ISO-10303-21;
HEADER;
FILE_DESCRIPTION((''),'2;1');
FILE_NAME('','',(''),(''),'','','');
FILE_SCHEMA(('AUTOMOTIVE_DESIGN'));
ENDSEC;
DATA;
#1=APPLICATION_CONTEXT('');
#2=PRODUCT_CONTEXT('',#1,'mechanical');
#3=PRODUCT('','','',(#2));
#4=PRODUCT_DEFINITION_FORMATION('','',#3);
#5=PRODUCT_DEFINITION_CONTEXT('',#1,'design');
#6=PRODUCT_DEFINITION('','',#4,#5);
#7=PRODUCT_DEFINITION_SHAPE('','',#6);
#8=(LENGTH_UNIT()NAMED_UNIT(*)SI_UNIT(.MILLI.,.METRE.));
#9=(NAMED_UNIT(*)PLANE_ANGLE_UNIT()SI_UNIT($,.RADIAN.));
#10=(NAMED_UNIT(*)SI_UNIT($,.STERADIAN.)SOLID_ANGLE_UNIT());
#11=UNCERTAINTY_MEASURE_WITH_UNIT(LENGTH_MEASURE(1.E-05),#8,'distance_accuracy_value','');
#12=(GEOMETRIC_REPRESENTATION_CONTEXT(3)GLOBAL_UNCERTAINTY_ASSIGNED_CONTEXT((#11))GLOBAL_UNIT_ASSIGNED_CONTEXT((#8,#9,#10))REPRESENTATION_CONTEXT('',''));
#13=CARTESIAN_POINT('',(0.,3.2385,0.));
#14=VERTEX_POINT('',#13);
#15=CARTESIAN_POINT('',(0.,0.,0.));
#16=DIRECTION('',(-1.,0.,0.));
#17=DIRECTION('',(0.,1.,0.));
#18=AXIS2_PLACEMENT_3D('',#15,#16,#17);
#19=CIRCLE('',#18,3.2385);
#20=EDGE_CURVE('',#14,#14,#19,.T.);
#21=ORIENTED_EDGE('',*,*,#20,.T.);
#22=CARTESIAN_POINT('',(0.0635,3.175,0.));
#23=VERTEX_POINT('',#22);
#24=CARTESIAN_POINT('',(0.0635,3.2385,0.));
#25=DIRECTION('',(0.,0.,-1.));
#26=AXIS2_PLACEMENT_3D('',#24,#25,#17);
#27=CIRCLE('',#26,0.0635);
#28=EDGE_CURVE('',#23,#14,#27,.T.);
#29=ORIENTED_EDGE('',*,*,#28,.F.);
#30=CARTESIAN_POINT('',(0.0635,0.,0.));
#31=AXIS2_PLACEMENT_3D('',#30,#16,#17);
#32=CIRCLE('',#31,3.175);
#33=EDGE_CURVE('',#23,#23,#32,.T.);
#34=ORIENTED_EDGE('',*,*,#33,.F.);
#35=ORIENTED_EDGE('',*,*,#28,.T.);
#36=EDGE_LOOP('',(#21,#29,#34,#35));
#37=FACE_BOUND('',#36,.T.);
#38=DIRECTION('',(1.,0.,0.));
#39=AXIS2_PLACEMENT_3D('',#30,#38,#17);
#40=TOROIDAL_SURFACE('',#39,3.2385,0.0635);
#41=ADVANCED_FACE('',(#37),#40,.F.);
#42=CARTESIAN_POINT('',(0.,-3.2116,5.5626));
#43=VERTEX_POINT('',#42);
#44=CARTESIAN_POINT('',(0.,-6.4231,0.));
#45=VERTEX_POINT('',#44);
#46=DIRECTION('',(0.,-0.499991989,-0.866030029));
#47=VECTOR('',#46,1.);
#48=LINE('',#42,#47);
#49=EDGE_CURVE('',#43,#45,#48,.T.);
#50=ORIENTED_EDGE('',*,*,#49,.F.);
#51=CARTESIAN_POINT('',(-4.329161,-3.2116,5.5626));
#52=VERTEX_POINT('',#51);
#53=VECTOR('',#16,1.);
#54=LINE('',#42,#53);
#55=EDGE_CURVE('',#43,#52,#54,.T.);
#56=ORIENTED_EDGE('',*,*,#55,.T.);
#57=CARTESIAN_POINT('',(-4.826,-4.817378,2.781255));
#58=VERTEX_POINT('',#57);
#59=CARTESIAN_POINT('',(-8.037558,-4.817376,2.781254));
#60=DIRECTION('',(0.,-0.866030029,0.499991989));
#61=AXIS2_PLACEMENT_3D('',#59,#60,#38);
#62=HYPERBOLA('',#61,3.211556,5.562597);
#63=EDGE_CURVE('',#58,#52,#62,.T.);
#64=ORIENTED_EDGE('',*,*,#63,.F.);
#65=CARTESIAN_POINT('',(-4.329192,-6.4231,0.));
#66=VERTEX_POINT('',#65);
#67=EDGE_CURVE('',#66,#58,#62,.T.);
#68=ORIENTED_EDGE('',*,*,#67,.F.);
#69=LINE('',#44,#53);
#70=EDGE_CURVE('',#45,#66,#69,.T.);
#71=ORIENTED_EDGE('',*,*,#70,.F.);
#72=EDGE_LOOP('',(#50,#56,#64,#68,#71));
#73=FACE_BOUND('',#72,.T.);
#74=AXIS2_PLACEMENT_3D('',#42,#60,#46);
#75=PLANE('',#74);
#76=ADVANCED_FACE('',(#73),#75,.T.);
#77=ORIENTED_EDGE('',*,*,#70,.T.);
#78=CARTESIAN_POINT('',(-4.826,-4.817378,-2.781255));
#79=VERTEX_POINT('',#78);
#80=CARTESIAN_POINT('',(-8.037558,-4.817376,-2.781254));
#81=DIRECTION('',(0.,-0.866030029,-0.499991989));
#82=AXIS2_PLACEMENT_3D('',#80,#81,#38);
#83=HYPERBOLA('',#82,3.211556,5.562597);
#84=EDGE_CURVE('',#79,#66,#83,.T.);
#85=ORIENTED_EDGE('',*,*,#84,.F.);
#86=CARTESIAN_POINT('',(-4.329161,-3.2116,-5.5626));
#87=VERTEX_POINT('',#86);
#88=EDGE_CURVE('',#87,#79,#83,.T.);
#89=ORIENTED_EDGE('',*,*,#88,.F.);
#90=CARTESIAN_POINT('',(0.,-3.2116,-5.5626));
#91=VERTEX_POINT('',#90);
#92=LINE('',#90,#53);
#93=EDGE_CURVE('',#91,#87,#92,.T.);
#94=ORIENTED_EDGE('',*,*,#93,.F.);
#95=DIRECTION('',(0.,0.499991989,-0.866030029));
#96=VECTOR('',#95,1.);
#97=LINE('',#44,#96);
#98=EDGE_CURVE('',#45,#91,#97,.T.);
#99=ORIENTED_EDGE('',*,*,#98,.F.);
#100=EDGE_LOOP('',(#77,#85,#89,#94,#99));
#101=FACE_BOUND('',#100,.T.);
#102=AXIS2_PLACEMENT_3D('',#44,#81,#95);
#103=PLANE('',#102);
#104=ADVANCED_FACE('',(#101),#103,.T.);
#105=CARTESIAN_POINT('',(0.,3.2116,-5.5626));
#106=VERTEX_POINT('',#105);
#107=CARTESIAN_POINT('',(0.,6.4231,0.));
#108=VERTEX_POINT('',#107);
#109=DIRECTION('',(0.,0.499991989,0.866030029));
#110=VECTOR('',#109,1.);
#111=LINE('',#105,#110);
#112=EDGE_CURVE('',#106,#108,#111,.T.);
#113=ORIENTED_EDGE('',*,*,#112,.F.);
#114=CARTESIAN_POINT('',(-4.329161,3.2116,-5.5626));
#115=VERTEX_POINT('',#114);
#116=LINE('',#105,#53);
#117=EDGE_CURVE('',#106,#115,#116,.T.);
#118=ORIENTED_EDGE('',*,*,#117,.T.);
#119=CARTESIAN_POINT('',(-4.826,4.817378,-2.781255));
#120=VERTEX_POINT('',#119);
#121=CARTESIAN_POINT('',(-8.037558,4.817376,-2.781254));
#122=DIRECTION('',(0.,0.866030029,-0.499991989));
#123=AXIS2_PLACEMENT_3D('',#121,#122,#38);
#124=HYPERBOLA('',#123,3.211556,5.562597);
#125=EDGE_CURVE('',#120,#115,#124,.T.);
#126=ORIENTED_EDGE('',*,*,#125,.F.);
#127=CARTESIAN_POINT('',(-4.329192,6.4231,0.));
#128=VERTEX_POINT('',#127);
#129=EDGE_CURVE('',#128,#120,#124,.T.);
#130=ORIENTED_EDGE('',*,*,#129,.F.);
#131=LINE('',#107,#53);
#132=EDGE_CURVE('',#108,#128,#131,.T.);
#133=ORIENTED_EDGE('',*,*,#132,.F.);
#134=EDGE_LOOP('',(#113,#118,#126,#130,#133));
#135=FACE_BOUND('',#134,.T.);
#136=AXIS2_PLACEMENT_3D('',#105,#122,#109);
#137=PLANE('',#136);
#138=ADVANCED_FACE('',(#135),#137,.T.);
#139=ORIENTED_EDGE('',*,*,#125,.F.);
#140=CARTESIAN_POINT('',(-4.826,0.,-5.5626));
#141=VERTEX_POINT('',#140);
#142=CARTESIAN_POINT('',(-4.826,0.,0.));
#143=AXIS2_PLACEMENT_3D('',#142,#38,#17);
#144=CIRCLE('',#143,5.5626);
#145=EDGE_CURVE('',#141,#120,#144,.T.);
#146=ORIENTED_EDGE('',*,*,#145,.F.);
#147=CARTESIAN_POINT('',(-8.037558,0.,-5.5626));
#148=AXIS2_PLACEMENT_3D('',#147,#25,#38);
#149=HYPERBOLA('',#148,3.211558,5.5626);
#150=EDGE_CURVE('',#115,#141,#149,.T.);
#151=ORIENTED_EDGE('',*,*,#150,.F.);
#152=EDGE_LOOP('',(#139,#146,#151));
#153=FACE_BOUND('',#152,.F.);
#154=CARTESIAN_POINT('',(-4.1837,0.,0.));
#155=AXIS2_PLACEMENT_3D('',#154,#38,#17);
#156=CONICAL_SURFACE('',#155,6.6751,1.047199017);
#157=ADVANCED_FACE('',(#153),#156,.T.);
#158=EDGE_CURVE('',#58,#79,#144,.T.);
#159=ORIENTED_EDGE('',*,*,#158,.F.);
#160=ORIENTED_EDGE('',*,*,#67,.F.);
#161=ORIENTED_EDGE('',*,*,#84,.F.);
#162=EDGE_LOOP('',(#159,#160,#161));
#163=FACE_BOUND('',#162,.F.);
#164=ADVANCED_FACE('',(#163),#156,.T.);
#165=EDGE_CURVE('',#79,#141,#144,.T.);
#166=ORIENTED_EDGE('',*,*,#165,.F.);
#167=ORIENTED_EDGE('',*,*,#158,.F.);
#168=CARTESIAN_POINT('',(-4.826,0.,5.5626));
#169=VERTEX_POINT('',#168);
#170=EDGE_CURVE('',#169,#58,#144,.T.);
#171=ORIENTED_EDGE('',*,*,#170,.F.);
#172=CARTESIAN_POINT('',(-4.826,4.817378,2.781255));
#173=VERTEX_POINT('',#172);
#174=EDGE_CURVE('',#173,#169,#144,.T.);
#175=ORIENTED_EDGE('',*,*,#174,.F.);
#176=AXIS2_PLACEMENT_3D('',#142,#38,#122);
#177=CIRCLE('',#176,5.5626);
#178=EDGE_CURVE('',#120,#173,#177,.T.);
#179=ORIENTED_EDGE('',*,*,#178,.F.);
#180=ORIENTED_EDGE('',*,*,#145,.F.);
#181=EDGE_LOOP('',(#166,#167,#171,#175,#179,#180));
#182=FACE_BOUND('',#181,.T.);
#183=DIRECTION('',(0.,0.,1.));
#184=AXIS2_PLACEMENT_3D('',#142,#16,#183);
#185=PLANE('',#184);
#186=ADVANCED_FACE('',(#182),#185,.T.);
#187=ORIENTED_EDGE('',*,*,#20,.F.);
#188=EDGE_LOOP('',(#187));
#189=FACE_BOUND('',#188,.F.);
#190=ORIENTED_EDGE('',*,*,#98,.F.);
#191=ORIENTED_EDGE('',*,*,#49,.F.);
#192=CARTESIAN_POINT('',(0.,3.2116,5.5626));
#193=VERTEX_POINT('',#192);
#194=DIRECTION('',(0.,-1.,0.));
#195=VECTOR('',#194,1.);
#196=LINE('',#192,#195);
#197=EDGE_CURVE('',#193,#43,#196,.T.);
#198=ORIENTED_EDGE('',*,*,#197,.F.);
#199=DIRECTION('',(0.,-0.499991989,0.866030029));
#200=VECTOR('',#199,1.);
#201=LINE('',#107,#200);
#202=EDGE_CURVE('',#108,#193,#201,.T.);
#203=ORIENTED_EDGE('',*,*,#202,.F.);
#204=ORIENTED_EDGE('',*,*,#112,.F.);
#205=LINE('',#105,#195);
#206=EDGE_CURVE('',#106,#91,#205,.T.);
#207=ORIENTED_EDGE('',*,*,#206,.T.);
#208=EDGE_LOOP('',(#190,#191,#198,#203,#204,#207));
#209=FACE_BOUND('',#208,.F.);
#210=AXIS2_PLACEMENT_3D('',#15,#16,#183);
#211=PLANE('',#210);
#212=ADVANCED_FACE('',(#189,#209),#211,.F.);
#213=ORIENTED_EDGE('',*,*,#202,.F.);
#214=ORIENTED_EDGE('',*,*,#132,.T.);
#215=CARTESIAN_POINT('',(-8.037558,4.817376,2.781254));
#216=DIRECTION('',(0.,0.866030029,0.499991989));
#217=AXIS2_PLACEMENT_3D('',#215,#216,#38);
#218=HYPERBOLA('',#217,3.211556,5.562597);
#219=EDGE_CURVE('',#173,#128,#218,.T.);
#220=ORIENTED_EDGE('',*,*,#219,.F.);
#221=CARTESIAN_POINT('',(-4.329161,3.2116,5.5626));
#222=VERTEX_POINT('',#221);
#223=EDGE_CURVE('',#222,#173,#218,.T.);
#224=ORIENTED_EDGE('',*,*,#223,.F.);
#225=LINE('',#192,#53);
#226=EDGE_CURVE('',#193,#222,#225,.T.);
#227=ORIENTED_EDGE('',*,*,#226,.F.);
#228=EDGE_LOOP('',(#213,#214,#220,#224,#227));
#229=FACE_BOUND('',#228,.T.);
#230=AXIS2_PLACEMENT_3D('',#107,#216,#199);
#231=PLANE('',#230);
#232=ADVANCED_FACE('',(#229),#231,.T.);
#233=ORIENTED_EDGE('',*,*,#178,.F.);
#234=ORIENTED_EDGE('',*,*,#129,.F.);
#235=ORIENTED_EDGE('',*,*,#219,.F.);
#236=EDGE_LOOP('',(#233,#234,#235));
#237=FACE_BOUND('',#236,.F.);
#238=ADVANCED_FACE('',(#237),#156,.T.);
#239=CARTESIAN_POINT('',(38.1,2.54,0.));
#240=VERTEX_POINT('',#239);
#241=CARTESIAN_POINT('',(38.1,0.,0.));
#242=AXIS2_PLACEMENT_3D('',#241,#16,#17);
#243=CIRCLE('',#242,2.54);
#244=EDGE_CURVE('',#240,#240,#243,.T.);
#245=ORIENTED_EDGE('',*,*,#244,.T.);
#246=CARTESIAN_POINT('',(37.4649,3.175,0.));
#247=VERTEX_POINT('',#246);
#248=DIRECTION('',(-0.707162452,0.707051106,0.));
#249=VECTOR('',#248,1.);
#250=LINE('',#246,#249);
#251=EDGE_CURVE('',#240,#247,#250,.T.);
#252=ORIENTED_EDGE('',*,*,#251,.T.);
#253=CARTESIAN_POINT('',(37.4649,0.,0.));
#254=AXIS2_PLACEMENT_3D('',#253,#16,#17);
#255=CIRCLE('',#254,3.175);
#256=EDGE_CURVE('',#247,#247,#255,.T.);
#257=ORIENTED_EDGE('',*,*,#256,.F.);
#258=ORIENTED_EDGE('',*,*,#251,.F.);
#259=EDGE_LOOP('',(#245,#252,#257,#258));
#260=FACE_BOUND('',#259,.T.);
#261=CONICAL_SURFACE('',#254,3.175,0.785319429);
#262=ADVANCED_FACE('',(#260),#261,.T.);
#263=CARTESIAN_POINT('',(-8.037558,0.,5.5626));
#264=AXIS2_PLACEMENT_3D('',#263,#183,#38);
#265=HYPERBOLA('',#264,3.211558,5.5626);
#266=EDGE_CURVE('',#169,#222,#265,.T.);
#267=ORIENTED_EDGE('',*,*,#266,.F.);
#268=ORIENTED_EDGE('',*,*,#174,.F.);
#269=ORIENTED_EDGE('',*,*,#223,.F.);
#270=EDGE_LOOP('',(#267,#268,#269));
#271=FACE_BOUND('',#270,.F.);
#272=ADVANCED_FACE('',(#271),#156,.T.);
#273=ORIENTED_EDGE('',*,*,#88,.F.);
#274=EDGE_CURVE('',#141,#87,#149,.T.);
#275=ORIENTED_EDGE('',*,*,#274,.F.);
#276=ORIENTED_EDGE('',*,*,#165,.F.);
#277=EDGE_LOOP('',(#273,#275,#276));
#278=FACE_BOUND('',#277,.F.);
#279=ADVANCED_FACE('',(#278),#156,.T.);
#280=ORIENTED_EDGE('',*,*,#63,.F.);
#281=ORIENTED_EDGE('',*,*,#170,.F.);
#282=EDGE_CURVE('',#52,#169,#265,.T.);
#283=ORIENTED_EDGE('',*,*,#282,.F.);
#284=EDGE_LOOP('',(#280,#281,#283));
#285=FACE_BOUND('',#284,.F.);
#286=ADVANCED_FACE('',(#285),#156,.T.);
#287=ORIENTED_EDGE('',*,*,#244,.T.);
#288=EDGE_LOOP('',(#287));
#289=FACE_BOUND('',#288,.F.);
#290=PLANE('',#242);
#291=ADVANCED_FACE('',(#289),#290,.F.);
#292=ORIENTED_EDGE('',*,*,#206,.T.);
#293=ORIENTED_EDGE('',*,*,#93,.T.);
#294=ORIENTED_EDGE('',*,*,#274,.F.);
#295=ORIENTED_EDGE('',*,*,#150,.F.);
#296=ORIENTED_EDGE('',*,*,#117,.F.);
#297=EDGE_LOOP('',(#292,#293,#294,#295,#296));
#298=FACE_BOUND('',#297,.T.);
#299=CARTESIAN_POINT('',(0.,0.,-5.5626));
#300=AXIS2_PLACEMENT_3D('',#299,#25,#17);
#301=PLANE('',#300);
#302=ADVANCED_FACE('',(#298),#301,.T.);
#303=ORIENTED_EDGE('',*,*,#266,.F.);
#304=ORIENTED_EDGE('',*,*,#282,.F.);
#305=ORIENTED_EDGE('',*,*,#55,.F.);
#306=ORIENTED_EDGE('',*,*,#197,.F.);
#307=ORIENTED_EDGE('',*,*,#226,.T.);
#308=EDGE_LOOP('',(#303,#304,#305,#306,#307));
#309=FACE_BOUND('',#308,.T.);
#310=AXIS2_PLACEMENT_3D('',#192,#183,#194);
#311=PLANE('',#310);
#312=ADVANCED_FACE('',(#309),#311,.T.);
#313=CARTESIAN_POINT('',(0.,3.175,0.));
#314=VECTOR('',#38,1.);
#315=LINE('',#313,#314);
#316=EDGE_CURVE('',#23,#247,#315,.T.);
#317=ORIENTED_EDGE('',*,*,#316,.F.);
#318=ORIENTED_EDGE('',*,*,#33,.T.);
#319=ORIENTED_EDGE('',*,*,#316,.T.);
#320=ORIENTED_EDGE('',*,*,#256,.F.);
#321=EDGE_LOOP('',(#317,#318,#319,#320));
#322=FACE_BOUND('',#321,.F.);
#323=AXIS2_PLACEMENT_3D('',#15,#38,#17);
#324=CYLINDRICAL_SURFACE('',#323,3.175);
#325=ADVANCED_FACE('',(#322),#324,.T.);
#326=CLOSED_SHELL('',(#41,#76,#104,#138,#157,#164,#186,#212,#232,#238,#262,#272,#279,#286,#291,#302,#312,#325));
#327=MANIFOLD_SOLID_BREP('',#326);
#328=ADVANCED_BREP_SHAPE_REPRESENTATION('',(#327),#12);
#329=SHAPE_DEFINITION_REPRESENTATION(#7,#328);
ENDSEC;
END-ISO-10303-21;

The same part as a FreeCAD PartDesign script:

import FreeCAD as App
import Part
import Sketcher
Q = App.Units.Quantity


def edges_at(feature, points):
    """Names of the edges that pass closest to the given points."""
    edges = feature.Shape.Edges
    near = lambda p: min(range(len(edges)), key=lambda i: edges[i].distToShape(Part.Vertex(*p))[0])
    return sorted({f"Edge{near(p) + 1}" for p in points})

doc = App.newDocument("Part")
body = doc.addObject("PartDesign::Body", "Body")

# Sketch on XY plane
sketch1 = body.newObject("Sketcher::SketchObject", "Sketch")
sketch1.AttachmentSupport = (doc.getObject("XY_Plane"), [""])
sketch1.MapMode = "FlatFace"
sketch1.addGeometry(Part.LineSegment(App.Vector(38.1, 3.2, 0), App.Vector(0, 3.2, 0)), False)
sketch1.addGeometry(Part.LineSegment(App.Vector(0, 3.2, 0), App.Vector(0, 0, 0)), False)
sketch1.addGeometry(Part.LineSegment(App.Vector(0, 0, 0), App.Vector(38.1, 0, 0)), False)
sketch1.addGeometry(Part.LineSegment(App.Vector(38.1, 0, 0), App.Vector(38.1, 3.2, 0)), False)
sketch1.addConstraint(Sketcher.Constraint("Coincident", 0, 2, 1, 1))
sketch1.addConstraint(Sketcher.Constraint("Coincident", 1, 2, 2, 1))
sketch1.addConstraint(Sketcher.Constraint("Coincident", 2, 2, 3, 1))
sketch1.addConstraint(Sketcher.Constraint("Coincident", 3, 2, 0, 1))
sketch1.addConstraint(Sketcher.Constraint("Horizontal", 0))
sketch1.addConstraint(Sketcher.Constraint("Vertical", 1))
sketch1.addConstraint(Sketcher.Constraint("Horizontal", 2))
sketch1.addConstraint(Sketcher.Constraint("Vertical", 3))
sketch1.addConstraint(Sketcher.Constraint("Coincident", 1, 2, -1, 1))
sketch1.addConstraint(Sketcher.Constraint("DistanceX", 0, 2, 0, 1, Q("1.5 in")))
sketch1.addConstraint(Sketcher.Constraint("DistanceY", 1, 2, 1, 1, Q("0.125 in")))
revolution = body.newObject("PartDesign::Revolution", "Revolution")
revolution.Profile = sketch1
revolution.ReferenceAxis = (sketch1, ["H_Axis"])
revolution.Angle = 360

# Sketch on YZ plane
sketch2 = body.newObject("Sketcher::SketchObject", "Sketch001")
sketch2.AttachmentSupport = (doc.getObject("YZ_Plane"), [""])
sketch2.MapMode = "FlatFace"
sketch2.addGeometry(Part.LineSegment(App.Vector(3, -6, 0), App.Vector(-3, -6, 0)), False)
sketch2.addGeometry(Part.LineSegment(App.Vector(-3, -6, 0), App.Vector(-6, 0, 0)), False)
sketch2.addGeometry(Part.LineSegment(App.Vector(-6, 0, 0), App.Vector(-3, 6, 0)), False)
sketch2.addGeometry(Part.LineSegment(App.Vector(-3, 6, 0), App.Vector(3, 6, 0)), False)
sketch2.addGeometry(Part.LineSegment(App.Vector(3, 6, 0), App.Vector(6, 0, 0)), False)
sketch2.addGeometry(Part.LineSegment(App.Vector(6, 0, 0), App.Vector(3, -6, 0)), False)
sketch2.addConstraint(Sketcher.Constraint("Coincident", 0, 2, 1, 1))
sketch2.addConstraint(Sketcher.Constraint("Coincident", 1, 2, 2, 1))
sketch2.addConstraint(Sketcher.Constraint("Coincident", 2, 2, 3, 1))
sketch2.addConstraint(Sketcher.Constraint("Coincident", 3, 2, 4, 1))
sketch2.addConstraint(Sketcher.Constraint("Coincident", 4, 2, 5, 1))
sketch2.addConstraint(Sketcher.Constraint("Coincident", 5, 2, 0, 1))
sketch2.addConstraint(Sketcher.Constraint("Horizontal", 0))
sketch2.addConstraint(Sketcher.Constraint("Horizontal", 3))
sketch2.addConstraint(Sketcher.Constraint("Symmetric", 0, 2, 3, 2, -1, 1))
sketch2.addConstraint(Sketcher.Constraint("Symmetric", 1, 2, 4, 2, -1, 1))
sketch2.addConstraint(Sketcher.Constraint("PointOnObject", 1, 2, -1))
sketch2.addConstraint(Sketcher.Constraint("Parallel", 2, 5))
sketch2.addConstraint(Sketcher.Constraint("Vertical", 0, 2, 2, 2))
sketch2.addConstraint(Sketcher.Constraint("Angle", 1, Q("119.9995 deg")))
sketch2.addConstraint(Sketcher.Constraint("DistanceY", 0, 2, 2, 2, Q("0.438 in")))
sketch2.addConstraint(Sketcher.Constraint("DistanceX", 0, 2, 0, 1, 6.4232))
pad1 = body.newObject("PartDesign::Pad", "Pad")
pad1.Profile = sketch2
pad1.Length = Q("0.19 in")
pad1.Reversed = True

# Sketch on XY plane
sketch3 = body.newObject("Sketcher::SketchObject", "Sketch002")
sketch3.AttachmentSupport = (doc.getObject("XY_Plane"), [""])
sketch3.MapMode = "FlatFace"
sketch3.addGeometry(Part.LineSegment(App.Vector(-4.8, 5.6, 0), App.Vector(-4.2, 6.7, 0)), False)
sketch3.addGeometry(Part.LineSegment(App.Vector(-4.2, 6.7, 0), App.Vector(-4.8, 6.7, 0)), False)
sketch3.addGeometry(Part.LineSegment(App.Vector(-4.8, 6.7, 0), App.Vector(-4.8, 5.6, 0)), False)
sketch3.addConstraint(Sketcher.Constraint("Coincident", 0, 2, 1, 1))
sketch3.addConstraint(Sketcher.Constraint("Coincident", 1, 2, 2, 1))
sketch3.addConstraint(Sketcher.Constraint("Coincident", 2, 2, 0, 1))
sketch3.addConstraint(Sketcher.Constraint("Horizontal", 1))
sketch3.addConstraint(Sketcher.Constraint("Vertical", 2))
sketch3.addConstraint(Sketcher.Constraint("DistanceX", 1, 2, -1, 1, Q("0.19 in")))
sketch3.addConstraint(Sketcher.Constraint("Angle", 0, Q("60 deg")))
sketch3.addConstraint(Sketcher.Constraint("DistanceY", 2, 2, 2, 1, Q("0.0438 in")))
sketch3.addConstraint(Sketcher.Constraint("DistanceY", -1, 1, 2, 2, Q("0.219 in")))
groove = body.newObject("PartDesign::Groove", "Groove")
groove.Profile = sketch3
groove.ReferenceAxis = (sketch3, ["H_Axis"])
groove.Angle = 360
doc.recompute()

chamfer = body.newObject("PartDesign::Chamfer", "Chamfer")
chamfer.Base = (groove, edges_at(groove, [(38.1, -3.175, 0)]))
chamfer.ChamferType = "Two distances"
chamfer.Size = Q("0.025 in")
chamfer.Size2 = Q("0.0250039 in")
doc.recompute()

fillet = body.newObject("PartDesign::Fillet", "Fillet")
fillet.Base = (chamfer, edges_at(chamfer, [(0, -3.175, 0)]))
fillet.Radius = Q("0.0025 in")

doc.recompute()
